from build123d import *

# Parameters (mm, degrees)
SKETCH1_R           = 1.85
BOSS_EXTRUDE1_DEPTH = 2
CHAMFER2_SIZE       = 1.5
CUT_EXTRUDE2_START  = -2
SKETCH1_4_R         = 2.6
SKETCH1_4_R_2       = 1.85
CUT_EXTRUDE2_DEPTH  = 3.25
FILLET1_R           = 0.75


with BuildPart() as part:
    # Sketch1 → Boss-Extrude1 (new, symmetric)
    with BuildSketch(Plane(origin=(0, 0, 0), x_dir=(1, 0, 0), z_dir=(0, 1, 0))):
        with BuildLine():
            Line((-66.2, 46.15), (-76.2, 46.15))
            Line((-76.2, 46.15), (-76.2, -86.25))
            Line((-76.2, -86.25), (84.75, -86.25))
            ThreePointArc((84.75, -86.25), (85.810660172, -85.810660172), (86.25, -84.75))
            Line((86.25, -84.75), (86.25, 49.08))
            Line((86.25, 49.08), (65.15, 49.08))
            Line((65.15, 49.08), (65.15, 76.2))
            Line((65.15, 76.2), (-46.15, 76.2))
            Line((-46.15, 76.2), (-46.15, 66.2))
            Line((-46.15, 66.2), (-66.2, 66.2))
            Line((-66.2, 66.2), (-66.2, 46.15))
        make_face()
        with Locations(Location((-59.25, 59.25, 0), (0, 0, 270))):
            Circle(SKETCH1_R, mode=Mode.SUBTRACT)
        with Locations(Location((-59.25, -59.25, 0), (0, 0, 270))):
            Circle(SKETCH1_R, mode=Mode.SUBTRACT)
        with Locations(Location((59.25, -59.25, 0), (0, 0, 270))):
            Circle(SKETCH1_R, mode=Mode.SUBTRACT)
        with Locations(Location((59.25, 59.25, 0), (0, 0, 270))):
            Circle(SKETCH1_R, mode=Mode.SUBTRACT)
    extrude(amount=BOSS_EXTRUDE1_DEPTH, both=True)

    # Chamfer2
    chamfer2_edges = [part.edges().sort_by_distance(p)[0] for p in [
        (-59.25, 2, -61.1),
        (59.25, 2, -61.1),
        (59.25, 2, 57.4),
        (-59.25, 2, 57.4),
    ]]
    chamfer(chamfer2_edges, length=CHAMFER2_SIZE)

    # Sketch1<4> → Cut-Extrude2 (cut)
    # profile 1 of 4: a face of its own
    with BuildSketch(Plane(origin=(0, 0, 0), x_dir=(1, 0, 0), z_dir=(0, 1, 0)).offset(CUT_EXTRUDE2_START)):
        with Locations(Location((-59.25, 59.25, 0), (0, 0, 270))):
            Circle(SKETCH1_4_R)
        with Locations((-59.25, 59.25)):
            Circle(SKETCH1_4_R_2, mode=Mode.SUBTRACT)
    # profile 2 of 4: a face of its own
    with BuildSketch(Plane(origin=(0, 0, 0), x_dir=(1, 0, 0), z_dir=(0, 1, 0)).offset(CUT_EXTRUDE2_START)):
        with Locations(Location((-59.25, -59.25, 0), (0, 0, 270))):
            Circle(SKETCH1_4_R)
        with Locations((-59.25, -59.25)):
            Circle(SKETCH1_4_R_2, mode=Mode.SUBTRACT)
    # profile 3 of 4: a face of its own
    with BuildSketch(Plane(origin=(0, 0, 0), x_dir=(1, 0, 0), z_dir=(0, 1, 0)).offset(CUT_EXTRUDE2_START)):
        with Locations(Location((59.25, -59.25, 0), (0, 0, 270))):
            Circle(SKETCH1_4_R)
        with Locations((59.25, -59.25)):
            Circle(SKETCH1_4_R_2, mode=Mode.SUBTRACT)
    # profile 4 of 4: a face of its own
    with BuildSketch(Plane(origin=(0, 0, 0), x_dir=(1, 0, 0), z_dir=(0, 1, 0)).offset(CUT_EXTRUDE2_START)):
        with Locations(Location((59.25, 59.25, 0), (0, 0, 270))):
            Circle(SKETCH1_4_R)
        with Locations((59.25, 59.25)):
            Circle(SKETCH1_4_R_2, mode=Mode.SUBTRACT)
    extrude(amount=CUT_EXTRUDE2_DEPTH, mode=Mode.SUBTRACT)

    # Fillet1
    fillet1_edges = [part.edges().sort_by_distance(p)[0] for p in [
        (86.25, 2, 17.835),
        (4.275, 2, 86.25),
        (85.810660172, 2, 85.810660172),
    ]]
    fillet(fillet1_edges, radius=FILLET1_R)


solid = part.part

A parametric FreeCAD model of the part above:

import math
import FreeCAD as App
import Part
import Sketcher

V = App.Vector


def edges_at(feature, points):
    """Names of the edges that pass closest to the given points."""
    edges = feature.Shape.Edges
    near = lambda p: min(range(len(edges)), key=lambda i: edges[i].distToShape(Part.Vertex(*p))[0])
    return sorted({f"Edge{near(p) + 1}" for p in points})

doc = App.newDocument("Part")
params = doc.addObject("Spreadsheet::Sheet", "Params")
for row, (alias, value) in enumerate([
    ("sketch1_diameter", "3.7 mm"),
    ("sketch1_radius", "1.5 mm"),
    ("sketch1_width", "10 mm"),
    ("sketch1_width2", "21.1 mm"),
    ("sketch1_width3", "111.3 mm"),
    ("pad1_length", "4 mm"),
    ("chamfer_size", "1.5 mm"),
    ("sketch2_diameter", "5.2 mm"),
    ("sketch2_diameter2", "3.7 mm"),
    ("pocket1_length", "3.25 mm"),
    ("fillet_radius", "0.75 mm"),
], start=1):
    params.set(f"A{row}", alias)
    params.set(f"B{row}", "=" + value)
    params.setAlias(f"B{row}", alias)

body = doc.addObject("PartDesign::Body", "Body")

sketch1 = body.newObject("Sketcher::SketchObject", "Sketch")
sketch1.AttachmentSupport = (doc.getObject("XZ_Plane"), [""])
sketch1.MapMode = "FlatFace"
sketch1.addGeometry([
    Part.LineSegment(V(-66.2, -46.15, 0), V(-76.2, -46.15, 0)),
    Part.LineSegment(V(-76.2, -46.15, 0), V(-76.2, 86.25, 0)),
    Part.LineSegment(V(-76.2, 86.25, 0), V(84.75, 86.25, 0)),
    Part.ArcOfCircle(Part.Circle(V(84.75, 84.75, 0), V(0, 0, 1), 1.5), math.radians(0), math.radians(90)),
    Part.LineSegment(V(86.25, 84.75, 0), V(86.25, -49.08, 0)),
    Part.LineSegment(V(86.25, -49.08, 0), V(65.15, -49.08, 0)),
    Part.LineSegment(V(65.15, -49.08, 0), V(65.15, -76.2, 0)),
    Part.LineSegment(V(65.15, -76.2, 0), V(-46.15, -76.2, 0)),
    Part.LineSegment(V(-46.15, -76.2, 0), V(-46.15, -66.2, 0)),
    Part.LineSegment(V(-46.15, -66.2, 0), V(-66.2, -66.2, 0)),
    Part.LineSegment(V(-66.2, -66.2, 0), V(-66.2, -46.15, 0)),
    Part.Circle(V(-59.25, 59.25, 0), V(0, 0, 1), 1.85),
    Part.Circle(V(59.25, 59.25, 0), V(0, 0, 1), 1.85),
    Part.Circle(V(-59.25, -59.25, 0), V(0, 0, 1), 1.85),
    Part.Circle(V(59.25, -59.25, 0), V(0, 0, 1), 1.85),
], False)
sketch1.addConstraint([
    Sketcher.Constraint("Coincident", 0, 2, 1, 1),
    Sketcher.Constraint("Coincident", 1, 2, 2, 1),
    Sketcher.Constraint("Tangent", 2, 2, 3, 2),
    Sketcher.Constraint("Tangent", 3, 1, 4, 1),
    Sketcher.Constraint("Coincident", 4, 2, 5, 1),
    Sketcher.Constraint("Coincident", 5, 2, 6, 1),
    Sketcher.Constraint("Coincident", 6, 2, 7, 1),
    Sketcher.Constraint("Coincident", 7, 2, 8, 1),
    Sketcher.Constraint("Coincident", 8, 2, 9, 1),
    Sketcher.Constraint("Coincident", 9, 2, 10, 1),
    Sketcher.Constraint("Coincident", 10, 2, 0, 1),
    Sketcher.Constraint("Horizontal", 0),
    Sketcher.Constraint("Vertical", 1),
    Sketcher.Constraint("Horizontal", 2),
    Sketcher.Constraint("Vertical", 4),
    Sketcher.Constraint("Horizontal", 5),
    Sketcher.Constraint("Vertical", 6),
    Sketcher.Constraint("Horizontal", 7),
    Sketcher.Constraint("Vertical", 8),
    Sketcher.Constraint("Horizontal", 9),
    Sketcher.Constraint("Vertical", 10),
    Sketcher.Constraint("Equal", 11, 12),
    Sketcher.Constraint("Equal", 12, 13),
    Sketcher.Constraint("Equal", 13, 14),
    Sketcher.Constraint("Symmetric", 12, 3, 13, 3, -1, 1),
    Sketcher.Constraint("Symmetric", 11, 3, 14, 3, -1, 1),
    Sketcher.Constraint("Symmetric", 11, 3, 12, 3, -2),
    Sketcher.Constraint("Equal", 0, 8),
    Sketcher.Constraint("Equal", 9, 10),
    Sketcher.Constraint("Diameter", 11, 3.7),
    Sketcher.Constraint("Radius", 3, 1.5),
    Sketcher.Constraint("DistanceX", 0, 2, 0, 1, 10.0),
    Sketcher.Constraint("DistanceX", 5, 2, 5, 1, 21.1),
    Sketcher.Constraint("DistanceX", 7, 2, 7, 1, 111.3),
    Sketcher.Constraint("DistanceY", 1, 1, 1, 2, 132.4),
    Sketcher.Constraint("DistanceX", 11, 3, 3, 3, 144.0),
    Sketcher.Constraint("DistanceY", 13, 3, 3, 3, 144.0),
    Sketcher.Constraint("DistanceY", 11, 3, 1, 2, 27.0),
    Sketcher.Constraint("DistanceX", 12, 3, 3, 1, 27.0),
    Sketcher.Constraint("DistanceX", 2, 1, 2, 2, 160.95),
    Sketcher.Constraint("DistanceY", 4, 2, 4, 1, 133.83),
])
sketch1.setExpression("Constraints[29]", "Params.sketch1_diameter")
sketch1.setExpression("Constraints[30]", "Params.sketch1_radius")
sketch1.setExpression("Constraints[31]", "Params.sketch1_width")
sketch1.setExpression("Constraints[32]", "Params.sketch1_width2")
sketch1.setExpression("Constraints[33]", "Params.sketch1_width3")
pad1 = body.newObject("PartDesign::Pad", "Pad")
pad1.Profile = sketch1
pad1.setExpression("Length", "Params.pad1_length")
pad1.Midplane = True
doc.recompute()

chamfer = body.newObject("PartDesign::Chamfer", "Chamfer")
chamfer.Base = (pad1, edges_at(pad1, [
    (-59.25, 2, -61.1),
    (59.25, 2, -61.1),
    (59.25, 2, 57.4),
    (-59.25, 2, 57.4),
]))
chamfer.setExpression("Size", "Params.chamfer_size")

sketch2 = body.newObject("Sketcher::SketchObject", "Sketch001")
sketch2.AttachmentSupport = (doc.getObject("XZ_Plane"), [""])
sketch2.MapMode = "FlatFace"
sketch2.AttachmentOffset = App.Placement(V(0, 0, 2), App.Rotation())
sketch2.addGeometry([
    Part.Circle(V(-59.25, -59.25, 0), V(0, 0, 1), 2.6),
    Part.Circle(V(-59.25, -59.25, 0), V(0, 0, 1), 1.85),
    Part.Circle(V(-59.25, 59.25, 0), V(0, 0, 1), 2.6),
    Part.Circle(V(-59.25, 59.25, 0), V(0, 0, 1), 1.85),
    Part.Circle(V(59.25, 59.25, 0), V(0, 0, 1), 2.6),
    Part.Circle(V(59.25, 59.25, 0), V(0, 0, 1), 1.85),
    Part.Circle(V(59.25, -59.25, 0), V(0, 0, 1), 2.6),
    Part.Circle(V(59.25, -59.25, 0), V(0, 0, 1), 1.85),
], False)
sketch2.addConstraint([
    Sketcher.Constraint("Coincident", 1, 3, 0, 3),
    Sketcher.Constraint("Coincident", 3, 3, 2, 3),
    Sketcher.Constraint("Coincident", 5, 3, 4, 3),
    Sketcher.Constraint("Coincident", 7, 3, 6, 3),
    Sketcher.Constraint("Equal", 0, 2),
    Sketcher.Constraint("Equal", 1, 3),
    Sketcher.Constraint("Equal", 2, 4),
    Sketcher.Constraint("Equal", 3, 5),
    Sketcher.Constraint("Equal", 4, 6),
    Sketcher.Constraint("Equal", 5, 7),
    Sketcher.Constraint("Symmetric", 0, 3, 4, 3, -1, 1),
    Sketcher.Constraint("Symmetric", 2, 3, 6, 3, -1, 1),
    Sketcher.Constraint("Symmetric", 2, 3, 4, 3, -2),
    Sketcher.Constraint("Diameter", 0, 5.2),
    Sketcher.Constraint("Diameter", 1, 3.7),
    Sketcher.Constraint("DistanceY", 0, 3, 2, 3, 118.5),
    Sketcher.Constraint("DistanceX", 2, 3, 4, 3, 118.5),
])
sketch2.setExpression("Constraints[13]", "Params.sketch2_diameter")
sketch2.setExpression("Constraints[14]", "Params.sketch2_diameter2")
pocket1 = body.newObject("PartDesign::Pocket", "Pocket")
pocket1.Profile = sketch2
pocket1.setExpression("Length", "Params.pocket1_length")
doc.recompute()

fillet = body.newObject("PartDesign::Fillet", "Fillet")
fillet.Base = (pocket1, edges_at(pocket1, [(86.25, 2, 17.835), (4.275, 2, 86.25), (85.811, 2, 85.811)]))
fillet.setExpression("Radius", "Params.fillet_radius")

doc.recompute()
